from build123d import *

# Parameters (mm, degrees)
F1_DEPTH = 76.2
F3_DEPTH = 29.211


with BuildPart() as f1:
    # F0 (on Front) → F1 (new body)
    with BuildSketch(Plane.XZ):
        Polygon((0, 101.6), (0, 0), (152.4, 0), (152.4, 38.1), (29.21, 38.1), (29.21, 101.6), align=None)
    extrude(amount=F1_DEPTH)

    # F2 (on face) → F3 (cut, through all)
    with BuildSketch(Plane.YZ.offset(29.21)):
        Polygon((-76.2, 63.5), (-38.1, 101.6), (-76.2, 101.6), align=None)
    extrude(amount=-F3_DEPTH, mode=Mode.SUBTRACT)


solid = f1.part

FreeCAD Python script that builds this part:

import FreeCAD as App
import Part
import Sketcher
Q = App.Units.Quantity


def add_polygon(sketch, points):
    """Adds a closed chain of lines whose ends are joined by coincident constraints."""
    first, n = sketch.GeometryCount, len(points)
    for a, b in zip(points, points[1:] + points[:1]):
        sketch.addGeometry(Part.LineSegment(App.Vector(*a, 0), App.Vector(*b, 0)), False)
    for i in range(n):
        sketch.addConstraint(Sketcher.Constraint("Coincident", first + i, 2, first + (i + 1) % n, 1))

doc = App.newDocument("Part")
body = doc.addObject("PartDesign::Body", "Body")

# Sketch on XZ plane
sketch1 = body.newObject("Sketcher::SketchObject", "Sketch")
sketch1.AttachmentSupport = (doc.getObject("XZ_Plane"), [""])
sketch1.MapMode = "FlatFace"
add_polygon(sketch1, [(0, 102), (0, 0), (152, 0), (152, 38), (29, 38), (29, 102)])  # lines 0-5
sketch1.addConstraint([
    Sketcher.Constraint("Vertical", 0),
    Sketcher.Constraint("Horizontal", 1),
    Sketcher.Constraint("Vertical", 2),
    Sketcher.Constraint("Horizontal", 3),
    Sketcher.Constraint("Vertical", 4),
    Sketcher.Constraint("Horizontal", 5),
    Sketcher.Constraint("Coincident", 0, 2, -1, 1),
    Sketcher.Constraint("DistanceX", 1, 1, 1, 2, Q("6 in")),
    Sketcher.Constraint("DistanceY", 0, 2, 0, 1, Q("4 in")),
    Sketcher.Constraint("DistanceY", 2, 1, 2, 2, Q("1.5 in")),
    Sketcher.Constraint("DistanceX", 3, 2, 3, 1, Q("4.85 in")),
])
pad1 = body.newObject("PartDesign::Pad", "Pad")
pad1.Profile = sketch1
pad1.Length = Q("3 in")

# Sketch on YZ plane
sketch2 = body.newObject("Sketcher::SketchObject", "Sketch001")
sketch2.AttachmentSupport = (doc.getObject("YZ_Plane"), [""])
sketch2.MapMode = "FlatFace"
sketch2.AttachmentOffset = App.Placement(App.Vector(0, 0, 1.15 * 25.4), App.Rotation())
add_polygon(sketch2, [(-76, 64), (-38, 102), (-76, 102)])  # lines 0-2
sketch2.addConstraint([
    Sketcher.Constraint("Horizontal", 1),
    Sketcher.Constraint("Vertical", 2),
    Sketcher.Constraint("Equal", 1, 2),
    Sketcher.Constraint("DistanceX", 1, 2, 1, 1, Q("1.5 in")),
    Sketcher.Constraint("DistanceY", -1, 1, 0, 2, Q("4 in")),
    Sketcher.Constraint("DistanceX", 1, 2, -1, 1, Q("3 in")),
])
pocket1 = body.newObject("PartDesign::Pocket", "Pocket")
pocket1.Profile = sketch2
pocket1.Type = "ThroughAll"

doc.recompute()
